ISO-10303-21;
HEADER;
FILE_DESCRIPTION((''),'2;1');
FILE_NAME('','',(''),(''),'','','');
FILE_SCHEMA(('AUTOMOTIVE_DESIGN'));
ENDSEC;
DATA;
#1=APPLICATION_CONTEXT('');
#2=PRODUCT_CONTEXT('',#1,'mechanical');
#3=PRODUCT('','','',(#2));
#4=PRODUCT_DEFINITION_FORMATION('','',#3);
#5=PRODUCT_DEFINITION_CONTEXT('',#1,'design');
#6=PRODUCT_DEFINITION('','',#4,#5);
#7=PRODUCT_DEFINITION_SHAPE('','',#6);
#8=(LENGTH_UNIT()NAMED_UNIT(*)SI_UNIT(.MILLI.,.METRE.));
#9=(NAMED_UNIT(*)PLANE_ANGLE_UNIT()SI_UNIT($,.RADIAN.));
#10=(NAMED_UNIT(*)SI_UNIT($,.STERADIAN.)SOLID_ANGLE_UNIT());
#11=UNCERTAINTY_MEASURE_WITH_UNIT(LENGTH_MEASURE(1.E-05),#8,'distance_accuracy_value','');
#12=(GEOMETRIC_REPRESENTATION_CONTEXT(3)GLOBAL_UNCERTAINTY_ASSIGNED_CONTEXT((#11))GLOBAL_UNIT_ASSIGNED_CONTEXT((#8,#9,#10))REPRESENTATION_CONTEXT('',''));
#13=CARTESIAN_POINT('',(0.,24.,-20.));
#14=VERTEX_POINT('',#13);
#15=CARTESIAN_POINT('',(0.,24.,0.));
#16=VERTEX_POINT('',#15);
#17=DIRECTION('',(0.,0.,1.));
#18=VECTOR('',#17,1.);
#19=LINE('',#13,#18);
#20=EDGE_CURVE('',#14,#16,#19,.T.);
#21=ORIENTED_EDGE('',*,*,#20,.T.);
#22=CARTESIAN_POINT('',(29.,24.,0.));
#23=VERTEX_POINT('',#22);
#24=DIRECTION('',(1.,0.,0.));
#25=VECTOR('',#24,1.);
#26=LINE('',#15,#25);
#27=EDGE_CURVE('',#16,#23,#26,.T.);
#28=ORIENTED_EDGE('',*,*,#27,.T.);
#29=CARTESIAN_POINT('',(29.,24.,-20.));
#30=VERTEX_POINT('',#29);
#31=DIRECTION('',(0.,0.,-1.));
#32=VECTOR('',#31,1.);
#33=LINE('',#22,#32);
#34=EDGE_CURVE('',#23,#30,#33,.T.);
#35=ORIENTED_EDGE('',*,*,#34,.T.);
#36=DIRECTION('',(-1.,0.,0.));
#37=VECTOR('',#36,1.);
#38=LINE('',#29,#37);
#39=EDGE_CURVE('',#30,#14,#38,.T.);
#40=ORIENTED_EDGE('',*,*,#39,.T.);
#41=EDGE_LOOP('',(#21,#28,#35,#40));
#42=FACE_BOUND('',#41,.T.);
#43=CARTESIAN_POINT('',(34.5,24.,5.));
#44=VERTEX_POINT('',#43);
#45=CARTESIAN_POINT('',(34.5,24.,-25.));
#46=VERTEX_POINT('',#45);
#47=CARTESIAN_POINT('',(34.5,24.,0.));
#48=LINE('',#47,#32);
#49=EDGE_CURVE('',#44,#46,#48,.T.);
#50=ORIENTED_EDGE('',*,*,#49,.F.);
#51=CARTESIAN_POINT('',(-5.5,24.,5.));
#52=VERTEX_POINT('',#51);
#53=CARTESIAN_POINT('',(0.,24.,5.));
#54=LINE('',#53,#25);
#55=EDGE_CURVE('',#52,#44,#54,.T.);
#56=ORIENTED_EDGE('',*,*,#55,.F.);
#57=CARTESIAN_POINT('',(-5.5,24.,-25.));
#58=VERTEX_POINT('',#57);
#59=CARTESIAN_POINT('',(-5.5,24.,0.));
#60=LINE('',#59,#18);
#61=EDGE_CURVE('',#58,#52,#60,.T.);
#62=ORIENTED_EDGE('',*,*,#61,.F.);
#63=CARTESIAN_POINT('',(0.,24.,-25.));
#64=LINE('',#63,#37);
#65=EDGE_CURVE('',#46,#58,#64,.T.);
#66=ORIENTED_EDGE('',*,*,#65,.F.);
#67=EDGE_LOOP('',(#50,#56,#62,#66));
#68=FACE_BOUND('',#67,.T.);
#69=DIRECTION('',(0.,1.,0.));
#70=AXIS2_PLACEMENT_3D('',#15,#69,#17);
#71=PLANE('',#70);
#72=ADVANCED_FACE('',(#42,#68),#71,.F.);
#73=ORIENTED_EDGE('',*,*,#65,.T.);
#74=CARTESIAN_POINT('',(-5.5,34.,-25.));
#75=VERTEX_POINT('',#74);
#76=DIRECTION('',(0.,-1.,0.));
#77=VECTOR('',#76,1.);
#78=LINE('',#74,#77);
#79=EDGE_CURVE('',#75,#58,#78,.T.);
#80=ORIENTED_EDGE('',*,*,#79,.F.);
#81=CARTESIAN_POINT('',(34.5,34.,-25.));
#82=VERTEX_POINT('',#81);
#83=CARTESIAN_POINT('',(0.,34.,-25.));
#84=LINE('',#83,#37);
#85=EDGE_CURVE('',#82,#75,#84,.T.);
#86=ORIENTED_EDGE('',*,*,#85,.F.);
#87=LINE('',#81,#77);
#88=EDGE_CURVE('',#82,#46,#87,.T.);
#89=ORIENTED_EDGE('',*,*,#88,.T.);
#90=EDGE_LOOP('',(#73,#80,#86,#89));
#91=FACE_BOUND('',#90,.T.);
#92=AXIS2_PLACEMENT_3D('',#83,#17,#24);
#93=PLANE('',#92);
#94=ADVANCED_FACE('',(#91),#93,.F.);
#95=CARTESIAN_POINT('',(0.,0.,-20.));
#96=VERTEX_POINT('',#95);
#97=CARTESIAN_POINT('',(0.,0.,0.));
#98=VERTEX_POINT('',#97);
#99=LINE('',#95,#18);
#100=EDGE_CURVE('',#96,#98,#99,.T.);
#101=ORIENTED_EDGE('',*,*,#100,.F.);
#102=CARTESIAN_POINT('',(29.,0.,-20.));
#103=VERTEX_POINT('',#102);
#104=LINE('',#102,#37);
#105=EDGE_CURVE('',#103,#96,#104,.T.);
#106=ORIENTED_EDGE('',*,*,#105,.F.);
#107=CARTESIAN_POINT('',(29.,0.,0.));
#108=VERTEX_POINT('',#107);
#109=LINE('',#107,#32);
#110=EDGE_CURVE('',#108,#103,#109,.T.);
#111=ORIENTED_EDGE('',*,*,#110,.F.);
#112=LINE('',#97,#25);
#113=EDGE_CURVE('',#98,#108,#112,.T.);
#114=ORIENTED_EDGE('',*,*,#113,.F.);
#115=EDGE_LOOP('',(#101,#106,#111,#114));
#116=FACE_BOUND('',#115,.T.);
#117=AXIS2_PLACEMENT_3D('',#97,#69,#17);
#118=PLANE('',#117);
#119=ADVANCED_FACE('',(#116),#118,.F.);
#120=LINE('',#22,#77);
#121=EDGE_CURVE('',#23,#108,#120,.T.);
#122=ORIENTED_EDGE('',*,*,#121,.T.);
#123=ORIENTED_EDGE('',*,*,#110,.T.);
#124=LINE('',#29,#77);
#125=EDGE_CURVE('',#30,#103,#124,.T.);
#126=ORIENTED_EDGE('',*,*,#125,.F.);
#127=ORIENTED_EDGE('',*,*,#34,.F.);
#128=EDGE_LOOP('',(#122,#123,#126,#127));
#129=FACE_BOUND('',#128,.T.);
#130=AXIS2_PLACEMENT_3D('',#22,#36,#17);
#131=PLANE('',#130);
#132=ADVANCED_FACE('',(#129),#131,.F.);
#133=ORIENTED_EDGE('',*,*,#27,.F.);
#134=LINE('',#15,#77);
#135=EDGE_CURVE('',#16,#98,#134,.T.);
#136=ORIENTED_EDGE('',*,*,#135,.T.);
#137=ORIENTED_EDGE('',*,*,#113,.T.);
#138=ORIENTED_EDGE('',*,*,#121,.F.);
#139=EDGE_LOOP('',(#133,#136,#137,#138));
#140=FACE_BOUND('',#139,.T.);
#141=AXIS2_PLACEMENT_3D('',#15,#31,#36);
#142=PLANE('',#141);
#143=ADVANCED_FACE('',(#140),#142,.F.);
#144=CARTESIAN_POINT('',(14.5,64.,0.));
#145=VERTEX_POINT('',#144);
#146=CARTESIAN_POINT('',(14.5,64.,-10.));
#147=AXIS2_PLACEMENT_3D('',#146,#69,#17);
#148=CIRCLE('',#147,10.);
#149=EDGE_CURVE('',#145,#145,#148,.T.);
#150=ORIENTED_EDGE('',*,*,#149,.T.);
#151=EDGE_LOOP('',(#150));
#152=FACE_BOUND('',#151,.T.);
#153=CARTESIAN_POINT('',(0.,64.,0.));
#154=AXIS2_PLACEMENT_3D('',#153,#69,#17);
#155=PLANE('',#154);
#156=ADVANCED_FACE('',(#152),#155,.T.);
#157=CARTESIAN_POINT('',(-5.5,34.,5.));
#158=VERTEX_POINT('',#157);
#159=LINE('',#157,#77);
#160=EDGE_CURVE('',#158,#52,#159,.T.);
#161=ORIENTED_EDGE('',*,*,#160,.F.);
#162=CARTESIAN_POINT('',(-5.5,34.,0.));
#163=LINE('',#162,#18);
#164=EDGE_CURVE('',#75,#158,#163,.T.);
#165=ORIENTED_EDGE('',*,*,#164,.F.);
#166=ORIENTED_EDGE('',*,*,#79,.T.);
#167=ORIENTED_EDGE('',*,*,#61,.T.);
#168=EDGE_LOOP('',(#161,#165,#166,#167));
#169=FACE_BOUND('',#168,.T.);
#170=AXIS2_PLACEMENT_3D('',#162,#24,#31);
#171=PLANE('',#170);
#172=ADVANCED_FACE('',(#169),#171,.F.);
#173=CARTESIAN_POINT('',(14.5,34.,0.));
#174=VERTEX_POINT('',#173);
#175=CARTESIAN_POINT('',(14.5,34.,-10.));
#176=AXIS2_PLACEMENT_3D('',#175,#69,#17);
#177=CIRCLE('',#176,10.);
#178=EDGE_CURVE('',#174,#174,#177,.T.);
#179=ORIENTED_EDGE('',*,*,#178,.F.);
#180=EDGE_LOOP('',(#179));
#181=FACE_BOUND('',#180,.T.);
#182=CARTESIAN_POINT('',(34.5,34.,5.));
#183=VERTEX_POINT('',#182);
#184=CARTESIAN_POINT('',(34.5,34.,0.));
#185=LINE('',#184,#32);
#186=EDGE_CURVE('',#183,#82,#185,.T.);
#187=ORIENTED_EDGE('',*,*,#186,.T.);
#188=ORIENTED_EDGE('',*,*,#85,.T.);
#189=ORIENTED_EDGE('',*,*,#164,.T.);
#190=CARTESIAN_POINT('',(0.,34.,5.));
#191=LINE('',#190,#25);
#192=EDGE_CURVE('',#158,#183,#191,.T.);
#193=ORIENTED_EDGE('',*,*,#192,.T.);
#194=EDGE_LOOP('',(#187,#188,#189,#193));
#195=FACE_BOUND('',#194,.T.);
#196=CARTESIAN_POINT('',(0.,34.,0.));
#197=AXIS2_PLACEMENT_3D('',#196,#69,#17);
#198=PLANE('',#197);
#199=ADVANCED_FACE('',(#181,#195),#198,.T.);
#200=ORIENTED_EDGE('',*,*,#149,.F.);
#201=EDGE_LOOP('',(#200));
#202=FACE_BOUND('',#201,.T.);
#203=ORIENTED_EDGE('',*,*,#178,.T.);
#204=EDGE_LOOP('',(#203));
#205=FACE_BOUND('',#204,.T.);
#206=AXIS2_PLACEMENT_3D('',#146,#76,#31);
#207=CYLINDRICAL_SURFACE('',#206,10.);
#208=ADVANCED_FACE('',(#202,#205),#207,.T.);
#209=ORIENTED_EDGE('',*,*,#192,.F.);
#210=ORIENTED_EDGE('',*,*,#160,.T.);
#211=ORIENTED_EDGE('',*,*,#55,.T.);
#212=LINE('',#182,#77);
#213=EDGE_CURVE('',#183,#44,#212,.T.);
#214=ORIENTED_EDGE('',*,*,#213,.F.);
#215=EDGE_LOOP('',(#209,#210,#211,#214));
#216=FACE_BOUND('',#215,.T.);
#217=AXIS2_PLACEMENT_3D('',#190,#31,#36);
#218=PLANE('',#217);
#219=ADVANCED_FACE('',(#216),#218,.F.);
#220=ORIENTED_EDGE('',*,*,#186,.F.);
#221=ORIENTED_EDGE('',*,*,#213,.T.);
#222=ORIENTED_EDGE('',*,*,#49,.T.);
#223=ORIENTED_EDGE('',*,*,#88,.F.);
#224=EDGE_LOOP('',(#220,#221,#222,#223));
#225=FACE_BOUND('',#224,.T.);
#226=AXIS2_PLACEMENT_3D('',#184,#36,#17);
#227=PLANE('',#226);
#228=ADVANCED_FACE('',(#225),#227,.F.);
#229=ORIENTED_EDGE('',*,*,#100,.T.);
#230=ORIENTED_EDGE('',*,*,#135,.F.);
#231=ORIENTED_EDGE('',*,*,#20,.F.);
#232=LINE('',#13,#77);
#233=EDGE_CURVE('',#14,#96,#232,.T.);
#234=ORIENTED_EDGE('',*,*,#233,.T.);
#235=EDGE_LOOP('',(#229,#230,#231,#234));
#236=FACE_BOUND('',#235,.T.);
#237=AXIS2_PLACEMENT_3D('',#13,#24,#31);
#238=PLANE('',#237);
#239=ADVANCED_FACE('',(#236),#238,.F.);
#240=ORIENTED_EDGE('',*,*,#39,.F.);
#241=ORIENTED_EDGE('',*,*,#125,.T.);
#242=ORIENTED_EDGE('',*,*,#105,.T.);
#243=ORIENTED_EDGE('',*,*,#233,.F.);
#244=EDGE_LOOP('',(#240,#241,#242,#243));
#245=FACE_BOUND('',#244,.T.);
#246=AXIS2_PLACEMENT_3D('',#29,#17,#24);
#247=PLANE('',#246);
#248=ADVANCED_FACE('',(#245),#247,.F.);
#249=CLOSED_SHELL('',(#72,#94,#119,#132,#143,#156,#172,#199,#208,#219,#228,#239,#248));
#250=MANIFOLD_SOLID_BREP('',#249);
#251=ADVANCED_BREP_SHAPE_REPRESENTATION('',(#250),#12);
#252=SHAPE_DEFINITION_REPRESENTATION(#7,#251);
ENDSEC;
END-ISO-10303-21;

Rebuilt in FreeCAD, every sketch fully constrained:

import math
import FreeCAD as App
import Part
import Sketcher

V = App.Vector


def add_polygon(sketch, points):
    """Adds a closed chain of lines whose ends are joined by coincident constraints."""
    first, n = sketch.GeometryCount, len(points)
    for a, b in zip(points, points[1:] + points[:1]):
        sketch.addGeometry(Part.LineSegment(App.Vector(*a, 0), App.Vector(*b, 0)), False)
    for i in range(n):
        sketch.addConstraint(Sketcher.Constraint("Coincident", first + i, 2, first + (i + 1) % n, 1))

doc = App.newDocument("Part")
params = doc.addObject("Spreadsheet::Sheet", "Params")
for row, (alias, value) in enumerate([
    ("sketch1_width", "29 mm"),
    ("sketch1_height", "20 mm"),
    ("pad1_length", "24 mm"),
    ("sketch2_width", "40 mm"),
    ("sketch2_height", "30 mm"),
    ("pad2_length", "10 mm"),
    ("sketch3_radius", "10 mm"),
    ("pad3_length", "30 mm"),
], start=1):
    params.set(f"A{row}", alias)
    params.set(f"B{row}", "=" + value)
    params.setAlias(f"B{row}", alias)

body = doc.addObject("PartDesign::Body", "Body")

sketch1 = doc.addObject("Sketcher::SketchObject", "Sketch")
body.addObject(sketch1)
sketch1.AttachmentSupport = (doc.XZ_Plane, [""])
sketch1.MapMode = "FlatFace"
add_polygon(sketch1, [(0, -20), (0, 0), (29, 0), (29, -20)])
sketch1.addConstraint(Sketcher.Constraint("Vertical", 0))
sketch1.addConstraint(Sketcher.Constraint("Horizontal", 1))
sketch1.addConstraint(Sketcher.Constraint("Vertical", 2))
sketch1.addConstraint(Sketcher.Constraint("Horizontal", 3))
sketch1.addConstraint(Sketcher.Constraint("Coincident", 0, 2, -1, 1))
sketch1.addConstraint(Sketcher.Constraint("DistanceX", 1, 1, 1, 2, 29.0))
sketch1.addConstraint(Sketcher.Constraint("DistanceY", 0, 1, 0, 2, 20.0))
sketch1.setExpression("Constraints[9]", "Params.sketch1_width")
sketch1.setExpression("Constraints[10]", "Params.sketch1_height")
pad1 = doc.addObject("PartDesign::Pad", "Pad")
body.addObject(pad1)
pad1.Profile = sketch1
pad1.setExpression("Length", "Params.pad1_length")
pad1.Reversed = True

sketch2 = doc.addObject("Sketcher::SketchObject", "Sketch001")
body.addObject(sketch2)
sketch2.AttachmentSupport = (doc.XZ_Plane, [""])
sketch2.MapMode = "FlatFace"
sketch2.AttachmentOffset = App.Placement(V(0, 0, -24), App.Rotation())
add_polygon(sketch2, [(34.5, 5), (34.5, -25), (-5.5, -25), (-5.5, 5)])
sketch2.addConstraint(Sketcher.Constraint("Vertical", 0))
sketch2.addConstraint(Sketcher.Constraint("Horizontal", 1))
sketch2.addConstraint(Sketcher.Constraint("Vertical", 2))
sketch2.addConstraint(Sketcher.Constraint("Horizontal", 3))
sketch2.addConstraint(Sketcher.Constraint("DistanceX", 1, 2, 1, 1, 40.0))
sketch2.addConstraint(Sketcher.Constraint("DistanceY", 0, 2, 0, 1, 30.0))
sketch2.addConstraint(Sketcher.Constraint("DistanceY", 0, 2, -1, 1, 25.0))
sketch2.addConstraint(Sketcher.Constraint("DistanceX", -1, 1, 0, 2, 34.5))
sketch2.setExpression("Constraints[8]", "Params.sketch2_width")
sketch2.setExpression("Constraints[9]", "Params.sketch2_height")
pad2 = doc.addObject("PartDesign::Pad", "Pad001")
body.addObject(pad2)
pad2.Profile = sketch2
pad2.setExpression("Length", "Params.pad2_length")
pad2.Reversed = True

sketch3 = doc.addObject("Sketcher::SketchObject", "Sketch002")
body.addObject(sketch3)
sketch3.AttachmentSupport = (doc.XZ_Plane, [""])
sketch3.MapMode = "FlatFace"
sketch3.AttachmentOffset = App.Placement(V(0, 0, -34), App.Rotation())
sketch3.addGeometry(Part.ArcOfCircle(Part.Circle(V(14.5, -10, 0), V(0, 0, 1), 10), math.radians(90), math.radians(180)), False)
sketch3.addGeometry(Part.ArcOfCircle(Part.Circle(V(14.5, -10, 0), V(0, 0, 1), 10), math.radians(0), math.radians(90)), False)
sketch3.addGeometry(Part.ArcOfCircle(Part.Circle(V(14.5, -10, 0), V(0, 0, 1), 10), math.radians(-90), math.radians(0)), False)
sketch3.addGeometry(Part.ArcOfCircle(Part.Circle(V(14.5, -10, 0), V(0, 0, 1), 10), math.radians(180), math.radians(270)), False)
sketch3.addConstraint(Sketcher.Constraint("Tangent", 0, 1, 1, 2))
sketch3.addConstraint(Sketcher.Constraint("Tangent", 1, 1, 2, 2))
sketch3.addConstraint(Sketcher.Constraint("Tangent", 2, 1, 3, 2))
sketch3.addConstraint(Sketcher.Constraint("Tangent", 3, 1, 0, 2))
sketch3.addConstraint(Sketcher.Constraint("Equal", 0, 1))
sketch3.addConstraint(Sketcher.Constraint("PointOnObject", 0, 1, -1))
sketch3.addConstraint(Sketcher.Constraint("Horizontal", 3, 3, 1, 1))
sketch3.addConstraint(Sketcher.Constraint("Horizontal", 1, 1, 3, 1))
sketch3.addConstraint(Sketcher.Constraint("Vertical", 3, 3, 0, 1))
sketch3.addConstraint(Sketcher.Constraint("Vertical", 0, 1, 2, 1))
sketch3.addConstraint(Sketcher.Constraint("Radius", 0, 10.0))
sketch3.addConstraint(Sketcher.Constraint("DistanceX", -1, 1, 0, 3, 14.5))
sketch3.setExpression("Constraints[10]", "Params.sketch3_radius")
pad3 = doc.addObject("PartDesign::Pad", "Pad002")
body.addObject(pad3)
pad3.Profile = sketch3
pad3.setExpression("Length", "Params.pad3_length")
pad3.Reversed = True

doc.recompute()
